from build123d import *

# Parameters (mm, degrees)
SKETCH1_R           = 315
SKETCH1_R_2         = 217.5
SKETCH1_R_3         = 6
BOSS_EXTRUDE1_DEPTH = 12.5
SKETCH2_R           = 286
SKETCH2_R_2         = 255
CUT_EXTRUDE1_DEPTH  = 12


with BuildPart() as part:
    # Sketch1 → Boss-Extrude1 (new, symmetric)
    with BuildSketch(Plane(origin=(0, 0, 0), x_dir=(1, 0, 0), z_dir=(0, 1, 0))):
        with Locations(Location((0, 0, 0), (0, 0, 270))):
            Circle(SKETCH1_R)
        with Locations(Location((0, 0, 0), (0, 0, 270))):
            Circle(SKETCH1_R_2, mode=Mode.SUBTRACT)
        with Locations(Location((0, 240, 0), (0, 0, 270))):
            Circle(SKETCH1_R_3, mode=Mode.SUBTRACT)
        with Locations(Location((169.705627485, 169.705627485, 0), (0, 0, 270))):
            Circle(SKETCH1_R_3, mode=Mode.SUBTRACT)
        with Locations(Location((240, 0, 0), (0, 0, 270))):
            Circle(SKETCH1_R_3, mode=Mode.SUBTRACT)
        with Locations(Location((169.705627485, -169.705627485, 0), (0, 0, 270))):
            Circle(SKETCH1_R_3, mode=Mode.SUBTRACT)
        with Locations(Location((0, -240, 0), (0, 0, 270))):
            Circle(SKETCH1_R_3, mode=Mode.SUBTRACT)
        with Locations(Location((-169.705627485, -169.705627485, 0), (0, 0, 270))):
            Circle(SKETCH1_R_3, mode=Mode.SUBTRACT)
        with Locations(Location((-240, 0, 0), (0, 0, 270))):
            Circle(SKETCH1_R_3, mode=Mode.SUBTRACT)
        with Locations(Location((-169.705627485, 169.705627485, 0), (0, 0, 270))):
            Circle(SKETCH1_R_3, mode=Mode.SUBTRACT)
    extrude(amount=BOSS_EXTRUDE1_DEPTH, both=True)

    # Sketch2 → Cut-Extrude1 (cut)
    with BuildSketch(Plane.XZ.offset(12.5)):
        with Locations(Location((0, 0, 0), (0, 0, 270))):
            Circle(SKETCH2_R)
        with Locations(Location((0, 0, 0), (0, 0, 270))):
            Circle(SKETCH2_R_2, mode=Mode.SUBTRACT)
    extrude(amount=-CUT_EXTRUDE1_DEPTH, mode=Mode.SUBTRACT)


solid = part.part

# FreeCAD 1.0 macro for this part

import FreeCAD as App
import Part
import Sketcher
from FreeCAD import Vector
Q = App.Units.Quantity

doc = App.newDocument("Part")
body = doc.addObject("PartDesign::Body", "Body")

# Sketch on XZ plane
sketch1 = body.newObject("Sketcher::SketchObject", "Sketch")
sketch1.AttachmentSupport = (doc.getObject("XZ_Plane"), [""])
sketch1.MapMode = "FlatFace"
sketch1.addGeometry([
    Part.Circle(Vector(0, 0, 0), Vector(0, 0, 1), 315),  # 0
    Part.Circle(Vector(-170, -170, 0), Vector(0, 0, 1), 6),  # 1
    Part.Circle(Vector(0, -240, 0), Vector(0, 0, 1), 6),  # 2
    Part.Circle(Vector(-240, 0, 0), Vector(0, 0, 1), 6),  # 3
    Part.Circle(Vector(-170, 170, 0), Vector(0, 0, 1), 6),  # 4
    Part.Circle(Vector(170, -170, 0), Vector(0, 0, 1), 6),  # 5
    Part.Circle(Vector(240, 0, 0), Vector(0, 0, 1), 6),  # 6
    Part.Circle(Vector(0, 0, 0), Vector(0, 0, 1), 218),  # 7
    Part.Circle(Vector(0, 240, 0), Vector(0, 0, 1), 6),  # 8
    Part.Circle(Vector(170, 170, 0), Vector(0, 0, 1), 6),  # 9
], False)
sketch1.addConstraint([
    Sketcher.Constraint("Coincident", 0, 3, -1, 1),
    Sketcher.Constraint("Coincident", 7, 3, -1, 1),
    Sketcher.Constraint("Equal", 1, 2),
    Sketcher.Constraint("Equal", 2, 3),
    Sketcher.Constraint("Equal", 3, 4),
    Sketcher.Constraint("Equal", 4, 5),
    Sketcher.Constraint("Equal", 5, 6),
    Sketcher.Constraint("Equal", 6, 8),
    Sketcher.Constraint("Equal", 8, 9),
    Sketcher.Constraint("Symmetric", 4, 3, 5, 3, -1, 1),
    Sketcher.Constraint("Symmetric", 3, 3, 6, 3, -1, 1),
    Sketcher.Constraint("Symmetric", 2, 3, 8, 3, -1, 1),
    Sketcher.Constraint("Symmetric", 1, 3, 9, 3, -1, 1),
    Sketcher.Constraint("Symmetric", 1, 3, 5, 3, -2),
    Sketcher.Constraint("PointOnObject", 2, 3, -2),
    Sketcher.Constraint("PointOnObject", 3, 3, -1),
    Sketcher.Constraint("Diameter", 0, Q("630 mm")),
    Sketcher.Constraint("Diameter", 1, Q("12 mm")),
    Sketcher.Constraint("Diameter", 7, Q("435 mm")),
    Sketcher.Constraint("DistanceY", 2, 3, -1, 1, Q("240 mm")),
    Sketcher.Constraint("DistanceX", 3, 3, -1, 1, Q("240 mm")),
    Sketcher.Constraint("DistanceX", 1, 3, -1, 1, Q("169.705627 mm")),
    Sketcher.Constraint("DistanceY", 1, 3, -1, 1, Q("169.705627 mm")),
])
pad1 = body.newObject("PartDesign::Pad", "Pad")
pad1.Profile = sketch1
pad1.Length = 25
pad1.Midplane = True

# Sketch on XZ plane
sketch2 = body.newObject("Sketcher::SketchObject", "Sketch001")
sketch2.AttachmentSupport = (doc.getObject("XZ_Plane"), [""])
sketch2.MapMode = "FlatFace"
sketch2.AttachmentOffset = App.Placement(Vector(0, 0, 12.5), App.Rotation())
sketch2.addGeometry([
    Part.Circle(Vector(0, 0, 0), Vector(0, 0, 1), 286),
    Part.Circle(Vector(0, 0, 0), Vector(0, 0, 1), 255),
], False)
sketch2.addConstraint([
    Sketcher.Constraint("Coincident", 0, 3, -1, 1),
    Sketcher.Constraint("Coincident", 1, 3, -1, 1),
    Sketcher.Constraint("Diameter", 0, Q("572 mm")),
    Sketcher.Constraint("Diameter", 1, Q("510 mm")),
])
pocket1 = body.newObject("PartDesign::Pocket", "Pocket")
pocket1.Profile = sketch2
pocket1.Length = 12

doc.recompute()
